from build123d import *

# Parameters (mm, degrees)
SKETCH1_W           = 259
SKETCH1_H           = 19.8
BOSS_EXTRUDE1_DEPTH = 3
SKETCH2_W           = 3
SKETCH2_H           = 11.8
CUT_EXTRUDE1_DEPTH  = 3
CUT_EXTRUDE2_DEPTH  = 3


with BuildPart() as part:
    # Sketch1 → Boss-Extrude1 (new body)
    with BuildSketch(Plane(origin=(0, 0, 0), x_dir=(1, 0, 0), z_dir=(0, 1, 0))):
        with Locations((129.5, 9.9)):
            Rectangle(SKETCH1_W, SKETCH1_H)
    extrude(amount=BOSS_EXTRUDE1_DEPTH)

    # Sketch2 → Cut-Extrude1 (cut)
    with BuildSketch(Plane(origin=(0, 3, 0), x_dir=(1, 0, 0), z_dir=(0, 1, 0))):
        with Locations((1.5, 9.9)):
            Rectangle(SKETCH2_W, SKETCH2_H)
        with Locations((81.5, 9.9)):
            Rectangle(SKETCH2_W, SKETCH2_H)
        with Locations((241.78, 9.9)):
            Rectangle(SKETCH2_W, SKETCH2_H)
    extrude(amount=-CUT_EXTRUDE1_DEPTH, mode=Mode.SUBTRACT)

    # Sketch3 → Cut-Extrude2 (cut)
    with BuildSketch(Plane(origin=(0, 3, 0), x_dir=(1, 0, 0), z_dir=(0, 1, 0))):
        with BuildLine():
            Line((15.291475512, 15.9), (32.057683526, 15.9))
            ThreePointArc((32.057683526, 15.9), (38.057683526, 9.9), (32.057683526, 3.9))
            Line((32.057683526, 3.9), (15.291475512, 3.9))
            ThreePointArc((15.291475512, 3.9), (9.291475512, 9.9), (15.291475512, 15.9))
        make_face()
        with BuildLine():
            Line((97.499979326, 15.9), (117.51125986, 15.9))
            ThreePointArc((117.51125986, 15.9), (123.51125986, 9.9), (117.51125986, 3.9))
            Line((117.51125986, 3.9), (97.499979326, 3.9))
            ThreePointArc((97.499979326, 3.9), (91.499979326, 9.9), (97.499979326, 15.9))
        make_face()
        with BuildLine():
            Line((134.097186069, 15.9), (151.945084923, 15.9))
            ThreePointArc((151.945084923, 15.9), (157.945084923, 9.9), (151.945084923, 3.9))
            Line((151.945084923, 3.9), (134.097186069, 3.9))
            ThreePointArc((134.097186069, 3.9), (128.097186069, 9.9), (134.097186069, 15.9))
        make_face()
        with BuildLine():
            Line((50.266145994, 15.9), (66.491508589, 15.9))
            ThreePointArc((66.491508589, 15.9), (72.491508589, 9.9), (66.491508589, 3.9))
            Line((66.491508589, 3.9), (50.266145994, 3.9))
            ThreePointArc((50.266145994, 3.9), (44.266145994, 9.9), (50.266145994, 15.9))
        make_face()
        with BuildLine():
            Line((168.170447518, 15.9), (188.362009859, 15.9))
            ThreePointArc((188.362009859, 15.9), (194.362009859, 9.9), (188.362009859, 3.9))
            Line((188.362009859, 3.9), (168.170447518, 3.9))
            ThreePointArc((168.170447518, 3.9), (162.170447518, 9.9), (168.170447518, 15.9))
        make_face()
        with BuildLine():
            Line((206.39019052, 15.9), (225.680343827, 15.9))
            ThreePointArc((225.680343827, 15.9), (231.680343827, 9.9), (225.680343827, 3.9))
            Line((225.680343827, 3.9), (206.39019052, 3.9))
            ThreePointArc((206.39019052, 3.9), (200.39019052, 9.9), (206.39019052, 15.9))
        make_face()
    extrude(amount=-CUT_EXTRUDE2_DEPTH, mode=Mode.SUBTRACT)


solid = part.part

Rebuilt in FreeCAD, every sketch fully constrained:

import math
import FreeCAD as App
import Part
import Sketcher
from FreeCAD import Vector


def add_polygon(sketch, points):
    """Adds a closed chain of lines whose ends are joined by coincident constraints."""
    first, n = sketch.GeometryCount, len(points)
    for a, b in zip(points, points[1:] + points[:1]):
        sketch.addGeometry(Part.LineSegment(App.Vector(*a, 0), App.Vector(*b, 0)), False)
    for i in range(n):
        sketch.addConstraint(Sketcher.Constraint("Coincident", first + i, 2, first + (i + 1) % n, 1))

doc = App.newDocument("Part")
body = doc.addObject("PartDesign::Body", "Body")

sketch1 = body.newObject("Sketcher::SketchObject", "Sketch")
sketch1.AttachmentSupport = (doc.getObject("XZ_Plane"), [""])
sketch1.MapMode = "FlatFace"
add_polygon(sketch1, [(0, -20), (0, 0), (259, 0), (259, -20)])
sketch1.addConstraint([
    Sketcher.Constraint("Vertical", 0),
    Sketcher.Constraint("Horizontal", 1),
    Sketcher.Constraint("Vertical", 2),
    Sketcher.Constraint("Horizontal", 3),
    Sketcher.Constraint("Coincident", 0, 2, -1, 1),
    Sketcher.Constraint("DistanceX", 1, 1, 1, 2, 259.0),
    Sketcher.Constraint("DistanceY", 0, 1, 0, 2, 19.8),
])
pad1 = body.newObject("PartDesign::Pad", "Pad")
pad1.Profile = sketch1
pad1.Length = 3
pad1.Reversed = True

sketch2 = body.newObject("Sketcher::SketchObject", "Sketch001")
sketch2.AttachmentSupport = (doc.getObject("XZ_Plane"), [""])
sketch2.MapMode = "FlatFace"
sketch2.AttachmentOffset = App.Placement(Vector(0, 0, -3), App.Rotation())
add_polygon(sketch2, [(0, -15.8), (0, -4), (3, -4), (3, -15.8)])
add_polygon(sketch2, [(80, -15.8), (80, -4), (83, -4), (83, -15.8)])
add_polygon(sketch2, [(240.3, -15.8), (240.3, -4), (243.3, -4), (243.3, -15.8)])
sketch2.addConstraint([
    Sketcher.Constraint("Vertical", 0),
    Sketcher.Constraint("Horizontal", 1),
    Sketcher.Constraint("Vertical", 2),
    Sketcher.Constraint("Horizontal", 3),
    Sketcher.Constraint("Vertical", 4),
    Sketcher.Constraint("Horizontal", 5),
    Sketcher.Constraint("Vertical", 6),
    Sketcher.Constraint("Horizontal", 7),
    Sketcher.Constraint("Vertical", 8),
    Sketcher.Constraint("Horizontal", 9),
    Sketcher.Constraint("Vertical", 10),
    Sketcher.Constraint("Horizontal", 11),
    Sketcher.Constraint("PointOnObject", 0, 2, -2),
    Sketcher.Constraint("Horizontal", 1, 2, 4, 2),
    Sketcher.Constraint("Horizontal", 3, 2, 6, 2),
    Sketcher.Constraint("Horizontal", 5, 2, 8, 2),
    Sketcher.Constraint("Horizontal", 7, 2, 10, 2),
    Sketcher.Constraint("Equal", 3, 5),
    Sketcher.Constraint("Equal", 7, 9),
    Sketcher.Constraint("DistanceX", 1, 1, 1, 2, 3.0),
    Sketcher.Constraint("DistanceY", 0, 1, 0, 2, 11.8),
    Sketcher.Constraint("DistanceY", 0, 2, -1, 1, 4.0),
    Sketcher.Constraint("DistanceX", -1, 1, 4, 2, 80.0),
    Sketcher.Constraint("DistanceX", -1, 1, 8, 2, 240.28),
])
pocket1 = body.newObject("PartDesign::Pocket", "Pocket")
pocket1.Profile = sketch2
pocket1.Length = 3
pocket1.Reversed = True

sketch3 = body.newObject("Sketcher::SketchObject", "Sketch002")
sketch3.AttachmentSupport = (doc.getObject("XZ_Plane"), [""])
sketch3.MapMode = "FlatFace"
sketch3.AttachmentOffset = App.Placement(Vector(0, 0, -3), App.Rotation())
sketch3.addGeometry([
    Part.LineSegment(Vector(32, -16, 0), Vector(15, -16, 0)),
    Part.ArcOfCircle(Part.Circle(Vector(15, -10, 0), Vector(0, 0, 1), 6), math.radians(90), math.radians(270)),
    Part.LineSegment(Vector(15, -4, 0), Vector(32, -4, 0)),
    Part.ArcOfCircle(Part.Circle(Vector(32, -10, 0), Vector(0, 0, 1), 6), math.radians(-90), math.radians(90)),
    Part.LineSegment(Vector(118, -16, 0), Vector(97, -16, 0)),
    Part.ArcOfCircle(Part.Circle(Vector(97, -10, 0), Vector(0, 0, 1), 6), math.radians(90), math.radians(270)),
    Part.LineSegment(Vector(97, -4, 0), Vector(118, -4, 0)),
    Part.ArcOfCircle(Part.Circle(Vector(118, -10, 0), Vector(0, 0, 1), 6), math.radians(-90), math.radians(90)),
    Part.LineSegment(Vector(152, -16, 0), Vector(134, -16, 0)),
    Part.ArcOfCircle(Part.Circle(Vector(134, -10, 0), Vector(0, 0, 1), 6), math.radians(90), math.radians(270)),
    Part.LineSegment(Vector(134, -4, 0), Vector(152, -4, 0)),
    Part.ArcOfCircle(Part.Circle(Vector(152, -10, 0), Vector(0, 0, 1), 6), math.radians(-90), math.radians(90)),
    Part.LineSegment(Vector(66, -16, 0), Vector(50, -16, 0)),
    Part.ArcOfCircle(Part.Circle(Vector(50, -10, 0), Vector(0, 0, 1), 6), math.radians(90), math.radians(270)),
    Part.LineSegment(Vector(50, -4, 0), Vector(66, -4, 0)),
    Part.ArcOfCircle(Part.Circle(Vector(66, -10, 0), Vector(0, 0, 1), 6), math.radians(-90), math.radians(90)),
    Part.LineSegment(Vector(188, -16, 0), Vector(168, -16, 0)),
    Part.ArcOfCircle(Part.Circle(Vector(168, -10, 0), Vector(0, 0, 1), 6), math.radians(90), math.radians(270)),
    Part.LineSegment(Vector(168, -4, 0), Vector(188, -4, 0)),
    Part.ArcOfCircle(Part.Circle(Vector(188, -10, 0), Vector(0, 0, 1), 6), math.radians(-90), math.radians(90)),
    Part.LineSegment(Vector(226, -16, 0), Vector(206, -16, 0)),
    Part.ArcOfCircle(Part.Circle(Vector(206, -10, 0), Vector(0, 0, 1), 6), math.radians(90), math.radians(270)),
    Part.LineSegment(Vector(206, -4, 0), Vector(226, -4, 0)),
    Part.ArcOfCircle(Part.Circle(Vector(226, -10, 0), Vector(0, 0, 1), 6), math.radians(-90), math.radians(90)),
], False)
sketch3.addConstraint([
    Sketcher.Constraint("Tangent", 0, 2, 1, 2),
    Sketcher.Constraint("Tangent", 1, 1, 2, 1),
    Sketcher.Constraint("Tangent", 2, 2, 3, 2),
    Sketcher.Constraint("Tangent", 3, 1, 0, 1),
    Sketcher.Constraint("Tangent", 4, 2, 5, 2),
    Sketcher.Constraint("Tangent", 5, 1, 6, 1),
    Sketcher.Constraint("Tangent", 6, 2, 7, 2),
    Sketcher.Constraint("Tangent", 7, 1, 4, 1),
    Sketcher.Constraint("Tangent", 8, 2, 9, 2),
    Sketcher.Constraint("Tangent", 9, 1, 10, 1),
    Sketcher.Constraint("Tangent", 10, 2, 11, 2),
    Sketcher.Constraint("Tangent", 11, 1, 8, 1),
    Sketcher.Constraint("Tangent", 12, 2, 13, 2),
    Sketcher.Constraint("Tangent", 13, 1, 14, 1),
    Sketcher.Constraint("Tangent", 14, 2, 15, 2),
    Sketcher.Constraint("Tangent", 15, 1, 12, 1),
    Sketcher.Constraint("Tangent", 16, 2, 17, 2),
    Sketcher.Constraint("Tangent", 17, 1, 18, 1),
    Sketcher.Constraint("Tangent", 18, 2, 19, 2),
    Sketcher.Constraint("Tangent", 19, 1, 16, 1),
    Sketcher.Constraint("Tangent", 20, 2, 21, 2),
    Sketcher.Constraint("Tangent", 21, 1, 22, 1),
    Sketcher.Constraint("Tangent", 22, 2, 23, 2),
    Sketcher.Constraint("Tangent", 23, 1, 20, 1),
    Sketcher.Constraint("Horizontal", 0),
    Sketcher.Constraint("Horizontal", 2),
    Sketcher.Constraint("Horizontal", 4),
    Sketcher.Constraint("Horizontal", 6),
    Sketcher.Constraint("Horizontal", 8),
    Sketcher.Constraint("Horizontal", 10),
    Sketcher.Constraint("Horizontal", 12),
    Sketcher.Constraint("Horizontal", 14),
    Sketcher.Constraint("Horizontal", 16),
    Sketcher.Constraint("Horizontal", 18),
    Sketcher.Constraint("Horizontal", 20),
    Sketcher.Constraint("Horizontal", 22),
    Sketcher.Constraint("Equal", 3, 5),
    Sketcher.Constraint("Equal", 7, 9),
    Sketcher.Constraint("Equal", 11, 13),
    Sketcher.Constraint("Equal", 15, 17),
    Sketcher.Constraint("Equal", 19, 21),
    Sketcher.Constraint("Horizontal", 3, 3, 5, 3),
    Sketcher.Constraint("Horizontal", 7, 3, 9, 3),
    Sketcher.Constraint("Horizontal", 11, 3, 13, 3),
    Sketcher.Constraint("Horizontal", 15, 3, 17, 3),
    Sketcher.Constraint("Horizontal", 19, 3, 21, 3),
    Sketcher.Constraint("Radius", 1, 6.0),
    Sketcher.Constraint("DistanceY", 1, 3, -1, 1, 9.9),
    Sketcher.Constraint("DistanceX", 8, 2, 8, 1, 17.847899),
    Sketcher.Constraint("DistanceX", 0, 2, 0, 1, 16.766208),
    Sketcher.Constraint("DistanceX", 4, 2, 4, 1, 20.011281),
    Sketcher.Constraint("DistanceX", 3, 3, 11, 3, 119.887401),
    Sketcher.Constraint("DistanceX", 12, 2, 12, 1, 16.225363),
    Sketcher.Constraint("DistanceX", 16, 2, 16, 1, 20.191562),
    Sketcher.Constraint("DistanceX", 20, 2, 20, 1, 19.290153),
    Sketcher.Constraint("DistanceX", -1, 1, 5, 3, 97.499979),
    Sketcher.Constraint("DistanceX", -1, 1, 15, 3, 66.491509),
    Sketcher.Constraint("DistanceX", -1, 1, 19, 3, 188.36201),
    Sketcher.Constraint("DistanceX", -1, 1, 21, 3, 206.390191),
    Sketcher.Constraint("DistanceX", 1, 3, 13, 3, 34.97467),
])
pocket2 = body.newObject("PartDesign::Pocket", "Pocket001")
pocket2.Profile = sketch3
pocket2.Length = 3
pocket2.Reversed = True

doc.recompute()
